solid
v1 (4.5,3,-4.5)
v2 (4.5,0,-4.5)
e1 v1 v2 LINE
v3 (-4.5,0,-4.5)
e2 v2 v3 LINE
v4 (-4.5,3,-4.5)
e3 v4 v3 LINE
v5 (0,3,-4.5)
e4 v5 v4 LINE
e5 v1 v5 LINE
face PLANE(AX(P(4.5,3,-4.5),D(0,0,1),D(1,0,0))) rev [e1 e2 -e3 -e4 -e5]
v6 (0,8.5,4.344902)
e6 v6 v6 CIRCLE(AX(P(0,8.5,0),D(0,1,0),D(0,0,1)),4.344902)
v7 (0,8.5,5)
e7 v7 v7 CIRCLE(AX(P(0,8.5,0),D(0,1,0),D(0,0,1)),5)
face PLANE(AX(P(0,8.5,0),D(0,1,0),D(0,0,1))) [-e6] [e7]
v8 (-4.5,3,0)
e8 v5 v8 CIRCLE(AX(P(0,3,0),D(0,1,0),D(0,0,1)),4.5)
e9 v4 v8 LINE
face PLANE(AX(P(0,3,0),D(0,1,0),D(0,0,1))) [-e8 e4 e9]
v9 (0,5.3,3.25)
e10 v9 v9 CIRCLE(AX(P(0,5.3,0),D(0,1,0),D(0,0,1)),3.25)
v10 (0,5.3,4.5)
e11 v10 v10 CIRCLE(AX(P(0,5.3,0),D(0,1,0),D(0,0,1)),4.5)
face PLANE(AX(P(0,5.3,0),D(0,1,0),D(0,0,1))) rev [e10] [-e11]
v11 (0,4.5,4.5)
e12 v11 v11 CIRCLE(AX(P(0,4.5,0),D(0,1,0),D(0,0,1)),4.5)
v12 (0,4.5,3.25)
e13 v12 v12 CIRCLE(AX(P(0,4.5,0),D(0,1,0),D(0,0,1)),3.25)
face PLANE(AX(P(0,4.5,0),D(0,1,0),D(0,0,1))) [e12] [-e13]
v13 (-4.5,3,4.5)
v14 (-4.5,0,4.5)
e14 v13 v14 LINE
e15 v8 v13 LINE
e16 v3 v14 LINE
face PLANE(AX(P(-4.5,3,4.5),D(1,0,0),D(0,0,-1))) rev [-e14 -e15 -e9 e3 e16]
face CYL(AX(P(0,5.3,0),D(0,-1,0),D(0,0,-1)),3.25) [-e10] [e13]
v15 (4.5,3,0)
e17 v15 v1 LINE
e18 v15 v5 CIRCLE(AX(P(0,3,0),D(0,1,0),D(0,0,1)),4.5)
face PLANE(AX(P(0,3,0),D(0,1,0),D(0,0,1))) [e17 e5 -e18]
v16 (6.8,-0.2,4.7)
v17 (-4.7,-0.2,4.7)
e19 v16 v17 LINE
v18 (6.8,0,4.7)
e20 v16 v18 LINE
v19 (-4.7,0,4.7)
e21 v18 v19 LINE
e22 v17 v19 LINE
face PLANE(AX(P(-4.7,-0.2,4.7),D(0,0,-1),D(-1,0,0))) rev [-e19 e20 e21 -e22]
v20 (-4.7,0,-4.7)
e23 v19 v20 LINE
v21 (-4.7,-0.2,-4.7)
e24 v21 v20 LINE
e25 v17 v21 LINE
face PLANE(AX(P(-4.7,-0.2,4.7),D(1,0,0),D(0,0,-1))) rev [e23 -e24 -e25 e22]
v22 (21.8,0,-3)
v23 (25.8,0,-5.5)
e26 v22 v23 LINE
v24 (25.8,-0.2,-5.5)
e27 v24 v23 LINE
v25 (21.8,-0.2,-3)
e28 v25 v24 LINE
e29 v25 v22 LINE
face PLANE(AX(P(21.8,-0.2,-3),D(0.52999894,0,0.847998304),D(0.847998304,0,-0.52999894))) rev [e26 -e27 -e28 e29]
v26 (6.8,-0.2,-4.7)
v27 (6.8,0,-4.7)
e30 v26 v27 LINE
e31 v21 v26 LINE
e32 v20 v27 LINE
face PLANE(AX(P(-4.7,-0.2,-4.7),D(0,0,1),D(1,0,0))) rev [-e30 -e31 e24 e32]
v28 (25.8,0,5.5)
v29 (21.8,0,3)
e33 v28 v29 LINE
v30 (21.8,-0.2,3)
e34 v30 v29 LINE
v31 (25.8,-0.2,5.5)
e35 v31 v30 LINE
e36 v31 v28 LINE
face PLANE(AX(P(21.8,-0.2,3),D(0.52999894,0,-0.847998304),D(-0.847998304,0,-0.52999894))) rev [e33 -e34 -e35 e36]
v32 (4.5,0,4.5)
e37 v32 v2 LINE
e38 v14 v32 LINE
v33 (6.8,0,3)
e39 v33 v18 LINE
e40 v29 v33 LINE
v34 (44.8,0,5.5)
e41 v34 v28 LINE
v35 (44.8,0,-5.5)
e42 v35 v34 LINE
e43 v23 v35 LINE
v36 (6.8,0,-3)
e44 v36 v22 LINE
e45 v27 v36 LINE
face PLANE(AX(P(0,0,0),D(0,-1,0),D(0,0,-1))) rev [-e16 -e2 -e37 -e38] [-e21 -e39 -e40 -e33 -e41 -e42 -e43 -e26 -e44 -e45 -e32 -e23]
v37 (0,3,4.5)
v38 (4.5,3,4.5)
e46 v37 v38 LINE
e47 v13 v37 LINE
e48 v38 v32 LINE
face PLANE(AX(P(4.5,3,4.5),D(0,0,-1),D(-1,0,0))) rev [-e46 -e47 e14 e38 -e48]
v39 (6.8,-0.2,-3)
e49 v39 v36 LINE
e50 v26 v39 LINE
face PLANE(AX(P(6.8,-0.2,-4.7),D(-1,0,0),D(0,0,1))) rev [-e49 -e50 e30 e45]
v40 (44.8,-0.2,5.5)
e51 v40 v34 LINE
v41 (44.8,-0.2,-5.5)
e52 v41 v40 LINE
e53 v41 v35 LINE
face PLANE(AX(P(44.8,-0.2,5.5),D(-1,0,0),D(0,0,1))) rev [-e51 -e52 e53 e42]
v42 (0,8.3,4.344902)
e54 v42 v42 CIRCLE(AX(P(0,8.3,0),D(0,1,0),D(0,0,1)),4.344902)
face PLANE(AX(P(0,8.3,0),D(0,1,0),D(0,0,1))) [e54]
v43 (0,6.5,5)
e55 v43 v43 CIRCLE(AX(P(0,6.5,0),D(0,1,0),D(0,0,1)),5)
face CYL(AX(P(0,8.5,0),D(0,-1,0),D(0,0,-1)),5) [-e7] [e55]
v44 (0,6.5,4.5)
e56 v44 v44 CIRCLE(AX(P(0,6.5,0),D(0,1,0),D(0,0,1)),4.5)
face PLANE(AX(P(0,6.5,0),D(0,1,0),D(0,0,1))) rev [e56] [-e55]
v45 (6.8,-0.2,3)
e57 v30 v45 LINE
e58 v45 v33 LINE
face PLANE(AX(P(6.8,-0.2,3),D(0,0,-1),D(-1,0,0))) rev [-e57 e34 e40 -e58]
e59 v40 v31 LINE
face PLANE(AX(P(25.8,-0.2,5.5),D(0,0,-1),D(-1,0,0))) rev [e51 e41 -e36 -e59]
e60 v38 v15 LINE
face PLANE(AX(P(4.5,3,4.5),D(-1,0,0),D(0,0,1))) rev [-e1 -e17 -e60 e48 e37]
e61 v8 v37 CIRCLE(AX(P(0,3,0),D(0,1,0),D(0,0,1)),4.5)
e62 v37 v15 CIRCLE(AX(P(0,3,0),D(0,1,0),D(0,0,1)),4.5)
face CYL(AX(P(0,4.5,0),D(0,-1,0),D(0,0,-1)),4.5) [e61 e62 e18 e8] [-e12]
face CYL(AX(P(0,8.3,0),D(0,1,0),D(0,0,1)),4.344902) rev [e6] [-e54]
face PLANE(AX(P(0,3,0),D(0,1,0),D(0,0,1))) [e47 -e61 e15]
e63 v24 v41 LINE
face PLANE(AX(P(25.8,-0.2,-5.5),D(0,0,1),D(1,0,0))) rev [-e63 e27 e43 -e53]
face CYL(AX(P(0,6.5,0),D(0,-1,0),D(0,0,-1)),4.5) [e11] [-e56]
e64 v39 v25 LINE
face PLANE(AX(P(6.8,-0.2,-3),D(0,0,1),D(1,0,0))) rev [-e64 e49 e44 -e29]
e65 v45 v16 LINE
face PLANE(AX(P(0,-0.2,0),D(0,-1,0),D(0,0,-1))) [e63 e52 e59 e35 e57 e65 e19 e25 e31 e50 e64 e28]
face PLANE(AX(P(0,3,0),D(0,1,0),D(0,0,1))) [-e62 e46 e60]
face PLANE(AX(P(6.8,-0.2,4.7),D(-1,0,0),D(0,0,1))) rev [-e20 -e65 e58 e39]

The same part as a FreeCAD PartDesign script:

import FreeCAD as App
import Part
import Sketcher

V = App.Vector
Q = App.Units.Quantity


def add_polygon(sketch, points):
    """Adds a closed chain of lines whose ends are joined by coincident constraints."""
    first, n = sketch.GeometryCount, len(points)
    for a, b in zip(points, points[1:] + points[:1]):
        sketch.addGeometry(Part.LineSegment(App.Vector(*a, 0), App.Vector(*b, 0)), False)
    for i in range(n):
        sketch.addConstraint(Sketcher.Constraint("Coincident", first + i, 2, first + (i + 1) % n, 1))

doc = App.newDocument("Part")
params = doc.addObject("Spreadsheet::Sheet", "Params")
for row, (alias, value) in enumerate([
    ("sketch1_width", "9 mm"),
    ("pad1_length", "3 mm"),
    ("sketch2_diameter", "9 mm"),
    ("pad2_length", "1.5 mm"),
    ("sketch3_diameter", "6.5 mm"),
    ("pad3_length", "0.8 mm"),
    ("sketch4_diameter", "9 mm"),
    ("pad4_length", "1.2 mm"),
    ("sketch5_diameter", "10 mm"),
    ("pad5_length", "2 mm"),
    ("pocket1_length", "0.2 mm"),
    ("sketch7_width", "15 mm"),
    ("sketch7_width2", "19 mm"),
    ("sketch7_height", "11 mm"),
    ("sketch7_width3", "11.5 mm"),
    ("sketch7_height2", "1.7 mm"),
    ("pad6_length", "0.2 mm"),
], start=1):
    params.set(f"A{row}", alias)
    params.set(f"B{row}", "=" + value)
    params.setAlias(f"B{row}", alias)

body = doc.addObject("PartDesign::Body", "Body")

# Sketch on XZ plane
sketch1 = doc.addObject("Sketcher::SketchObject", "Sketch")
body.addObject(sketch1)
sketch1.AttachmentSupport = (doc.XZ_Plane, [""])
sketch1.MapMode = "FlatFace"
add_polygon(sketch1, [(-4, -4), (-4, 4), (4, 4), (4, -4)])  # lines 0-3
sketch1.addConstraint(Sketcher.Constraint("Vertical", 0))
sketch1.addConstraint(Sketcher.Constraint("Horizontal", 1))
sketch1.addConstraint(Sketcher.Constraint("Vertical", 2))
sketch1.addConstraint(Sketcher.Constraint("Horizontal", 3))
sketch1.addConstraint(Sketcher.Constraint("Symmetric", 0, 2, 2, 2, -1, 1))
sketch1.addConstraint(Sketcher.Constraint("Equal", 3, 0))
sketch1.addConstraint(Sketcher.Constraint("DistanceX", 1, 1, 1, 2, Q("9 mm")))
sketch1.setExpression("Constraints[10]", "Params.sketch1_width")
pad1 = doc.addObject("PartDesign::Pad", "Pad")
body.addObject(pad1)
pad1.Profile = sketch1
pad1.setExpression("Length", "Params.pad1_length")
pad1.Reversed = True

# Sketch on XZ plane
sketch2 = doc.addObject("Sketcher::SketchObject", "Sketch001")
body.addObject(sketch2)
sketch2.AttachmentSupport = (doc.XZ_Plane, [""])
sketch2.MapMode = "FlatFace"
sketch2.AttachmentOffset = App.Placement(V(0, 0, -3), App.Rotation())
sketch2.addGeometry(Part.Circle(V(0, 0, 0), V(0, 0, 1), 4.5), False)
sketch2.addConstraint(Sketcher.Constraint("Coincident", 0, 3, -1, 1))
sketch2.addConstraint(Sketcher.Constraint("Diameter", 0, Q("9 mm")))
sketch2.setExpression("Constraints[1]", "Params.sketch2_diameter")
pad2 = doc.addObject("PartDesign::Pad", "Pad001")
body.addObject(pad2)
pad2.Profile = sketch2
pad2.setExpression("Length", "Params.pad2_length")
pad2.Reversed = True

# Sketch on XZ plane
sketch3 = doc.addObject("Sketcher::SketchObject", "Sketch002")
body.addObject(sketch3)
sketch3.AttachmentSupport = (doc.XZ_Plane, [""])
sketch3.MapMode = "FlatFace"
sketch3.AttachmentOffset = App.Placement(V(0, 0, -4.5), App.Rotation())
sketch3.addGeometry(Part.Circle(V(0, 0, 0), V(0, 0, 1), 3.2), False)
sketch3.addConstraint(Sketcher.Constraint("Coincident", 0, 3, -1, 1))
sketch3.addConstraint(Sketcher.Constraint("Diameter", 0, Q("6.5 mm")))
sketch3.setExpression("Constraints[1]", "Params.sketch3_diameter")
pad3 = doc.addObject("PartDesign::Pad", "Pad002")
body.addObject(pad3)
pad3.Profile = sketch3
pad3.setExpression("Length", "Params.pad3_length")
pad3.Reversed = True

# Sketch on XZ plane
sketch4 = doc.addObject("Sketcher::SketchObject", "Sketch003")
body.addObject(sketch4)
sketch4.AttachmentSupport = (doc.XZ_Plane, [""])
sketch4.MapMode = "FlatFace"
sketch4.AttachmentOffset = App.Placement(V(0, 0, -5.3), App.Rotation())
sketch4.addGeometry(Part.Circle(V(0, 0, 0), V(0, 0, 1), 4.5), False)
sketch4.addConstraint(Sketcher.Constraint("Coincident", 0, 3, -1, 1))
sketch4.addConstraint(Sketcher.Constraint("Diameter", 0, Q("9 mm")))
sketch4.setExpression("Constraints[1]", "Params.sketch4_diameter")
pad4 = doc.addObject("PartDesign::Pad", "Pad003")
body.addObject(pad4)
pad4.Profile = sketch4
pad4.setExpression("Length", "Params.pad4_length")
pad4.Reversed = True

# Sketch on XZ plane
sketch5 = doc.addObject("Sketcher::SketchObject", "Sketch004")
body.addObject(sketch5)
sketch5.AttachmentSupport = (doc.XZ_Plane, [""])
sketch5.MapMode = "FlatFace"
sketch5.AttachmentOffset = App.Placement(V(0, 0, -6.5), App.Rotation())
sketch5.addGeometry(Part.Circle(V(0, 0, 0), V(0, 0, 1), 5), False)
sketch5.addConstraint(Sketcher.Constraint("Coincident", 0, 3, -1, 1))
sketch5.addConstraint(Sketcher.Constraint("Diameter", 0, Q("10 mm")))
sketch5.setExpression("Constraints[1]", "Params.sketch5_diameter")
pad5 = doc.addObject("PartDesign::Pad", "Pad004")
body.addObject(pad5)
pad5.Profile = sketch5
pad5.setExpression("Length", "Params.pad5_length")
pad5.Reversed = True

# Sketch on XZ plane
sketch6 = doc.addObject("Sketcher::SketchObject", "Sketch005")
body.addObject(sketch6)
sketch6.AttachmentSupport = (doc.XZ_Plane, [""])
sketch6.MapMode = "FlatFace"
sketch6.AttachmentOffset = App.Placement(V(0, 0, -8.5), App.Rotation())
sketch6.addGeometry(Part.Circle(V(0, 0, 0), V(0, 0, 1), 4.3), False)
sketch6.addConstraint(Sketcher.Constraint("Coincident", 0, 3, -1, 1))
sketch6.addConstraint(Sketcher.Constraint("Diameter", 0, Q("8.689803 mm")))
pocket1 = doc.addObject("PartDesign::Pocket", "Pocket")
body.addObject(pocket1)
pocket1.Profile = sketch6
pocket1.setExpression("Length", "Params.pocket1_length")
pocket1.Reversed = True

# Sketch on XZ plane
sketch7 = doc.addObject("Sketcher::SketchObject", "Sketch006")
body.addObject(sketch7)
sketch7.AttachmentSupport = (doc.XZ_Plane, [""])
sketch7.MapMode = "FlatFace"
add_polygon(sketch7, [(6.8, 3), (6.8, 4.7), (-4.7, 4.7), (-4.7, -4.7), (6.8, -4.7), (6.8, -3), (21.8, -3), (25.8, -5.5), (44.8, -5.5), (44.8, 5.5), (25.8, 5.5), (21.8, 3)])  # lines 0-11
sketch7.addConstraint(Sketcher.Constraint("Vertical", 0))
sketch7.addConstraint(Sketcher.Constraint("Horizontal", 1))
sketch7.addConstraint(Sketcher.Constraint("Vertical", 2))
sketch7.addConstraint(Sketcher.Constraint("Horizontal", 3))
sketch7.addConstraint(Sketcher.Constraint("Vertical", 4))
sketch7.addConstraint(Sketcher.Constraint("Horizontal", 5))
sketch7.addConstraint(Sketcher.Constraint("Horizontal", 7))
sketch7.addConstraint(Sketcher.Constraint("Vertical", 8))
sketch7.addConstraint(Sketcher.Constraint("Horizontal", 9))
sketch7.addConstraint(Sketcher.Constraint("Horizontal", 11))
sketch7.addConstraint(Sketcher.Constraint("Symmetric", 0, 2, 3, 2, -1))
sketch7.addConstraint(Sketcher.Constraint("Symmetric", 6, 2, 9, 2, -1))
sketch7.addConstraint(Sketcher.Constraint("Symmetric", 5, 2, 10, 2, -1))
sketch7.addConstraint(Sketcher.Constraint("DistanceX", 5, 1, 5, 2, Q("15 mm")))
sketch7.addConstraint(Sketcher.Constraint("DistanceX", 7, 1, 7, 2, Q("19 mm")))
sketch7.addConstraint(Sketcher.Constraint("DistanceY", 8, 1, 8, 2, Q("11 mm")))
sketch7.addConstraint(Sketcher.Constraint("DistanceX", 1, 2, 1, 1, Q("11.5 mm")))
sketch7.addConstraint(Sketcher.Constraint("DistanceY", 0, 1, 0, 2, Q("1.7 mm")))
sketch7.addConstraint(Sketcher.Constraint("DistanceY", 2, 2, 2, 1, Q("9.4 mm")))
sketch7.addConstraint(Sketcher.Constraint("DistanceX", 5, 2, 6, 2, Q("4 mm")))
sketch7.addConstraint(Sketcher.Constraint("DistanceX", -1, 1, 0, 2, Q("6.8 mm")))
sketch7.setExpression("Constraints[25]", "Params.sketch7_width")
sketch7.setExpression("Constraints[26]", "Params.sketch7_width2")
sketch7.setExpression("Constraints[27]", "Params.sketch7_height")
sketch7.setExpression("Constraints[28]", "Params.sketch7_width3")
sketch7.setExpression("Constraints[29]", "Params.sketch7_height2")
pad6 = doc.addObject("PartDesign::Pad", "Pad005")
body.addObject(pad6)
pad6.Profile = sketch7
pad6.setExpression("Length", "Params.pad6_length")

doc.recompute()
